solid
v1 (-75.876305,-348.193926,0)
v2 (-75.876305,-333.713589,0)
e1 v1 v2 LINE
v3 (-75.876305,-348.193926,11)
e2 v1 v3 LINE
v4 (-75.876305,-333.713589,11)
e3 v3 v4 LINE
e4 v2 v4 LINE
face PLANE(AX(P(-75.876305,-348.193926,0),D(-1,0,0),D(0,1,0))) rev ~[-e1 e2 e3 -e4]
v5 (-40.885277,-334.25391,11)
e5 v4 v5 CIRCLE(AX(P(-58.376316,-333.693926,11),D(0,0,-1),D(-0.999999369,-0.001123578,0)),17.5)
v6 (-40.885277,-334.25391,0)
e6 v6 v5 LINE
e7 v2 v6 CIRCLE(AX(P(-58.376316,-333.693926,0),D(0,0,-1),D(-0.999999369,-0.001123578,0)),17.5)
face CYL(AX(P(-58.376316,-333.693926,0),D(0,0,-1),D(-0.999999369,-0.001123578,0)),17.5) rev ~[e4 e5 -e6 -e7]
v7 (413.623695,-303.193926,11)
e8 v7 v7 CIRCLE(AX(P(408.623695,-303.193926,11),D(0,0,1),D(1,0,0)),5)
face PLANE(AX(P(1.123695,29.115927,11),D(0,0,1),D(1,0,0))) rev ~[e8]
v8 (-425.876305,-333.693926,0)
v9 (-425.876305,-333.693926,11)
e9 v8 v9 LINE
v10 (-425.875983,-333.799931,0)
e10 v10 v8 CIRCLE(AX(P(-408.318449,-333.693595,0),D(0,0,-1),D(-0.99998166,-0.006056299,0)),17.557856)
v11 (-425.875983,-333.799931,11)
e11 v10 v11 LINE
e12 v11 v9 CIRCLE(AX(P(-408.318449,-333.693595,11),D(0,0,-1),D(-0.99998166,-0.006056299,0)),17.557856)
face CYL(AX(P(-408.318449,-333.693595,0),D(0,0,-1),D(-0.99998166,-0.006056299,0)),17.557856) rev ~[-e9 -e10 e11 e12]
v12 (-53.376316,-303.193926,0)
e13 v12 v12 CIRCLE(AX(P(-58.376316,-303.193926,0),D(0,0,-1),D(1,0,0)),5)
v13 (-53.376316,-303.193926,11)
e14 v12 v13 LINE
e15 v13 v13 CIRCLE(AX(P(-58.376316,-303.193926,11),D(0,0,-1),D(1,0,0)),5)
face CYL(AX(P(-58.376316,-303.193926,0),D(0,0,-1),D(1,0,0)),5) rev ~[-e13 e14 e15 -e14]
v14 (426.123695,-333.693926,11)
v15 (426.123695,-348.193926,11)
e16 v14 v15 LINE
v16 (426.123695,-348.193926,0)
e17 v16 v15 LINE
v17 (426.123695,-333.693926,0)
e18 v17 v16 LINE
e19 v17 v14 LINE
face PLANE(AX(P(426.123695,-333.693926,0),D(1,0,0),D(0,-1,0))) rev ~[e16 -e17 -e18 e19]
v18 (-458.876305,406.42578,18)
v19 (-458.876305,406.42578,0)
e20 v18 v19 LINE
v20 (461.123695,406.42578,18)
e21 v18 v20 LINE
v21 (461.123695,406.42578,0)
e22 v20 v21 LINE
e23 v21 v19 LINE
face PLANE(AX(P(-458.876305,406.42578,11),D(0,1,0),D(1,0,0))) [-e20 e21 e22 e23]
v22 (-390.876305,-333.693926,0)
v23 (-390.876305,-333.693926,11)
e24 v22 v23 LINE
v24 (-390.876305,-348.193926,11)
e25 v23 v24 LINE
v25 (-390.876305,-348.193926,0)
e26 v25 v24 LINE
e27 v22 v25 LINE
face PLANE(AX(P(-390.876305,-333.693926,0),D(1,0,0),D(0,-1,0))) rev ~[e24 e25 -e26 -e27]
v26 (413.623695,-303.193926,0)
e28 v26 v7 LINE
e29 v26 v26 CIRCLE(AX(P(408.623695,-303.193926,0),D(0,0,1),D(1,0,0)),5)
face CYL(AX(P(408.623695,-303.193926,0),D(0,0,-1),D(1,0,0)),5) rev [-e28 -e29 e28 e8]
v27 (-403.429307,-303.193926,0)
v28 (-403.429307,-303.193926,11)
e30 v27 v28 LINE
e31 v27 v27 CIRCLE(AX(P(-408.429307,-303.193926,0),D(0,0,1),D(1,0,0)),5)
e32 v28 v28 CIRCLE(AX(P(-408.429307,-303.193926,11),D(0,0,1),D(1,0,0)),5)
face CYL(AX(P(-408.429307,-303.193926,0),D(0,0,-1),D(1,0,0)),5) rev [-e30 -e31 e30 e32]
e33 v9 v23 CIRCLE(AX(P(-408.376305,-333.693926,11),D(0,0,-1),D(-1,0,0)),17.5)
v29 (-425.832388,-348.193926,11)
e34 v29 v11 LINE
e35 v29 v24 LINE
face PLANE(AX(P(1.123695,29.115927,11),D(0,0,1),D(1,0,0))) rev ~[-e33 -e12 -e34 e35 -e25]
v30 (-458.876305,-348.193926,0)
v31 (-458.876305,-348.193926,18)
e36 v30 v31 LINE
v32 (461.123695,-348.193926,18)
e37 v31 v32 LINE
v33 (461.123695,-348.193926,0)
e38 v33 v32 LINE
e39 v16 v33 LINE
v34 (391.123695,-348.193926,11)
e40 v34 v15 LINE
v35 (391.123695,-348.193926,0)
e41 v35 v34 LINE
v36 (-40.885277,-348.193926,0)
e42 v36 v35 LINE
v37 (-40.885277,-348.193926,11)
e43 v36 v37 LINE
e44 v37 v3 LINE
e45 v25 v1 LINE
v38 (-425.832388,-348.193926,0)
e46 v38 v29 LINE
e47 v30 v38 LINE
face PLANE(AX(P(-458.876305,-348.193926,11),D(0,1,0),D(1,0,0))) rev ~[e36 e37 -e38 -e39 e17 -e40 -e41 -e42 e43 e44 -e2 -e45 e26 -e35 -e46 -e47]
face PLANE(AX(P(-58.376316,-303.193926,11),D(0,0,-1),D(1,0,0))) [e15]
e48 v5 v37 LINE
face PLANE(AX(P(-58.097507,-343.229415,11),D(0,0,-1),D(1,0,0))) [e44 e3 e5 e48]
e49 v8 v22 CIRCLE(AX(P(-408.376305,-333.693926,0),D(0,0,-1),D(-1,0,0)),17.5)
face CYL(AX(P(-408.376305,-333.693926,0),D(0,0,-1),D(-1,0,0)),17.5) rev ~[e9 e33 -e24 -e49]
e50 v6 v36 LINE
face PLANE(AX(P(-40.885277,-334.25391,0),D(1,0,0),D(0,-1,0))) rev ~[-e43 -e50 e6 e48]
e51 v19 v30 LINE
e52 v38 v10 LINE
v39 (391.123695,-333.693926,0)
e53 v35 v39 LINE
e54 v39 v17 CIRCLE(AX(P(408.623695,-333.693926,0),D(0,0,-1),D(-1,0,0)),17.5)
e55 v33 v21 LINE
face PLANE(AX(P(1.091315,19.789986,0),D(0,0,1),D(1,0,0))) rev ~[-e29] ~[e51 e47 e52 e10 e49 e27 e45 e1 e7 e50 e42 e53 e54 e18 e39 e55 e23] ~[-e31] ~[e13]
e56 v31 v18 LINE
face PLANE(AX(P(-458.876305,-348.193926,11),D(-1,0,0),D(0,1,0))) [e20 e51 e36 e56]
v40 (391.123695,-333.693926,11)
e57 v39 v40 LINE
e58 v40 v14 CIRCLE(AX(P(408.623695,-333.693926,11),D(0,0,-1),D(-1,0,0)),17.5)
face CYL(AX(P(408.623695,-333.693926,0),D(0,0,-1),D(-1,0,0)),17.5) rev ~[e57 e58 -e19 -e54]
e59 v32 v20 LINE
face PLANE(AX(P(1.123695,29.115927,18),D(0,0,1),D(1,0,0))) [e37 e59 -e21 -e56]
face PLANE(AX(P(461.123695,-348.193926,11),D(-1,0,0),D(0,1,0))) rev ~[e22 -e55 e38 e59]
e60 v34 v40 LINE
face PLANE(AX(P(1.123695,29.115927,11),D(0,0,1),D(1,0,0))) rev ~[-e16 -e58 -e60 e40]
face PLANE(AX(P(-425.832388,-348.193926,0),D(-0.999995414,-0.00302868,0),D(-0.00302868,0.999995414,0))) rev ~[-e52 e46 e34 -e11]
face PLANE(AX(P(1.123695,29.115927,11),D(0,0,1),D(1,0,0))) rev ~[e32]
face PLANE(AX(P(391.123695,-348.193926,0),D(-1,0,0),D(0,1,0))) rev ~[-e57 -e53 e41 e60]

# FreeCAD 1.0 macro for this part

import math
import FreeCAD as App
import Part
import Sketcher

V = App.Vector


def add_polygon(sketch, points):
    """Adds a closed chain of lines whose ends are joined by coincident constraints."""
    first, n = sketch.GeometryCount, len(points)
    for a, b in zip(points, points[1:] + points[:1]):
        sketch.addGeometry(Part.LineSegment(App.Vector(*a, 0), App.Vector(*b, 0)), False)
    for i in range(n):
        sketch.addConstraint(Sketcher.Constraint("Coincident", first + i, 2, first + (i + 1) % n, 1))

doc = App.newDocument("Part")
body = doc.addObject("PartDesign::Body", "Body")

# Sketch on XY plane
sketch1 = body.newObject("Sketcher::SketchObject", "Sketch")
sketch1.AttachmentSupport = (doc.getObject("XY_Plane"), [""])
sketch1.MapMode = "FlatFace"
sketch1.addGeometry(Part.LineSegment(V(461.12, 406.43, 0), V(-458.88, 406.43, 0)), False)
sketch1.addGeometry(Part.LineSegment(V(-458.88, 406.43, 0), V(-458.88, -348.19, 0)), False)
sketch1.addGeometry(Part.LineSegment(V(-458.88, -348.19, 0), V(-425.83, -348.19, 0)), False)
sketch1.addGeometry(Part.LineSegment(V(-425.83, -348.19, 0), V(-425.88, -333.8, 0)), False)
sketch1.addGeometry(Part.ArcOfCircle(Part.Circle(V(-408.32, -333.69, 0), V(0, 0, 1), 17.56), math.radians(-180), math.radians(-179.65)), False)
sketch1.addGeometry(Part.ArcOfCircle(Part.Circle(V(-408.38, -333.69, 0), V(0, 0, 1), 17.5), math.radians(0), math.radians(180)), False)
sketch1.addGeometry(Part.LineSegment(V(-390.88, -333.69, 0), V(-390.88, -348.19, 0)), False)
sketch1.addGeometry(Part.LineSegment(V(-390.88, -348.19, 0), V(391.12, -348.19, 0)), False)
sketch1.addGeometry(Part.LineSegment(V(391.12, -348.19, 0), V(391.12, -333.69, 0)), False)
sketch1.addGeometry(Part.ArcOfCircle(Part.Circle(V(408.62, -333.69, 0), V(0, 0, 1), 17.5), math.radians(0), math.radians(180)), False)
sketch1.addGeometry(Part.LineSegment(V(426.12, -333.69, 0), V(426.12, -348.19, 0)), False)
sketch1.addGeometry(Part.LineSegment(V(426.12, -348.19, 0), V(461.12, -348.19, 0)), False)
sketch1.addGeometry(Part.LineSegment(V(461.12, -348.19, 0), V(461.12, 406.43, 0)), False)
sketch1.addGeometry(Part.Circle(V(-408.43, -303.19, 0), V(0, 0, 1), 5), False)
sketch1.addGeometry(Part.Circle(V(408.62, -303.19, 0), V(0, 0, 1), 5), False)
sketch1.addConstraint(Sketcher.Constraint("Coincident", 0, 2, 1, 1))
sketch1.addConstraint(Sketcher.Constraint("Coincident", 1, 2, 2, 1))
sketch1.addConstraint(Sketcher.Constraint("Coincident", 2, 2, 3, 1))
sketch1.addConstraint(Sketcher.Constraint("Coincident", 3, 2, 4, 2))
sketch1.addConstraint(Sketcher.Constraint("Coincident", 4, 1, 5, 2))
sketch1.addConstraint(Sketcher.Constraint("Tangent", 5, 1, 6, 1))
sketch1.addConstraint(Sketcher.Constraint("Coincident", 6, 2, 7, 1))
sketch1.addConstraint(Sketcher.Constraint("Coincident", 7, 2, 8, 1))
sketch1.addConstraint(Sketcher.Constraint("Tangent", 8, 2, 9, 2))
sketch1.addConstraint(Sketcher.Constraint("Tangent", 9, 1, 10, 1))
sketch1.addConstraint(Sketcher.Constraint("Coincident", 10, 2, 11, 1))
sketch1.addConstraint(Sketcher.Constraint("Coincident", 11, 2, 12, 1))
sketch1.addConstraint(Sketcher.Constraint("Coincident", 12, 2, 0, 1))
sketch1.addConstraint(Sketcher.Constraint("Horizontal", 0))
sketch1.addConstraint(Sketcher.Constraint("Vertical", 1))
sketch1.addConstraint(Sketcher.Constraint("Horizontal", 2))
sketch1.addConstraint(Sketcher.Constraint("Vertical", 6))
sketch1.addConstraint(Sketcher.Constraint("Horizontal", 7))
sketch1.addConstraint(Sketcher.Constraint("Vertical", 8))
sketch1.addConstraint(Sketcher.Constraint("Vertical", 10))
sketch1.addConstraint(Sketcher.Constraint("Horizontal", 11))
sketch1.addConstraint(Sketcher.Constraint("Vertical", 12))
sketch1.addConstraint(Sketcher.Constraint("Equal", 5, 9))
sketch1.addConstraint(Sketcher.Constraint("Equal", 13, 14))
sketch1.addConstraint(Sketcher.Constraint("Horizontal", 5, 3, 9, 3))
sketch1.addConstraint(Sketcher.Constraint("Horizontal", 13, 3, 14, 3))
sketch1.addConstraint(Sketcher.Constraint("Horizontal", 9, 3, 4, 1))
sketch1.addConstraint(Sketcher.Constraint("Horizontal", 2, 2, 6, 2))
sketch1.addConstraint(Sketcher.Constraint("Horizontal", 7, 2, 10, 2))
sketch1.addConstraint(Sketcher.Constraint("Vertical", 9, 3, 14, 3))
sketch1.addConstraint(Sketcher.Constraint("Diameter", 13, 10.0))
sketch1.addConstraint(Sketcher.Constraint("Radius", 5, 17.5))
sketch1.addConstraint(Sketcher.Constraint("DistanceX", 0, 2, 0, 1, 920.0))
sketch1.addConstraint(Sketcher.Constraint("DistanceX", 7, 1, 7, 2, 782.0))
sketch1.addConstraint(Sketcher.Constraint("DistanceX", 11, 1, 11, 2, 35.0))
sketch1.addConstraint(Sketcher.Constraint("DistanceY", 6, 2, 6, 1, 14.5))
sketch1.addConstraint(Sketcher.Constraint("DistanceY", 1, 2, 13, 3, 45.0))
sketch1.addConstraint(Sketcher.Constraint("Radius", 4, 17.557856))
sketch1.addConstraint(Sketcher.Constraint("DistanceX", 13, 3, 5, 3, 0.053002))
sketch1.addConstraint(Sketcher.Constraint("Distance", 3, 14.394061))
sketch1.addConstraint(Sketcher.Constraint("DistanceX", 2, 1, 2, 2, 33.043917))
sketch1.addConstraint(Sketcher.Constraint("DistanceY", 1, 2, 1, 1, 754.619706))
sketch1.addConstraint(Sketcher.Constraint("DistanceX", 4, 3, -1, 1, 408.318449))
sketch1.addConstraint(Sketcher.Constraint("DistanceY", -1, 1, 0, 2, 406.42578))
sketch1.addConstraint(Sketcher.Constraint("DistanceY", 5, 3, 4, 3, 0.000331))
pad1 = body.newObject("PartDesign::Pad", "Pad")
pad1.Profile = sketch1
pad1.Length = 11

# Sketch on XY plane
sketch2 = body.newObject("Sketcher::SketchObject", "Sketch001")
sketch2.AttachmentSupport = (doc.getObject("XY_Plane"), [""])
sketch2.MapMode = "FlatFace"
sketch2.AttachmentOffset = App.Placement(V(0, 0, 11), App.Rotation())
add_polygon(sketch2, [(-459, 406), (-459, -348), (461, -348), (461, 406)])  # lines 0-3
sketch2.addConstraint(Sketcher.Constraint("Vertical", 0))
sketch2.addConstraint(Sketcher.Constraint("Horizontal", 1))
sketch2.addConstraint(Sketcher.Constraint("Vertical", 2))
sketch2.addConstraint(Sketcher.Constraint("Horizontal", 3))
sketch2.addConstraint(Sketcher.Constraint("DistanceX", 1, 1, 1, 2, 920.0))
sketch2.addConstraint(Sketcher.Constraint("DistanceY", 0, 2, 0, 1, 754.619706))
sketch2.addConstraint(Sketcher.Constraint("DistanceY", -1, 1, 2, 2, 406.42578))
sketch2.addConstraint(Sketcher.Constraint("DistanceX", 0, 2, -1, 1, 458.876305))
pad2 = body.newObject("PartDesign::Pad", "Pad001")
pad2.Profile = sketch2
pad2.Length = 7

# Sketch on XY plane
sketch3 = body.newObject("Sketcher::SketchObject", "Sketch002")
sketch3.AttachmentSupport = (doc.getObject("XY_Plane"), [""])
sketch3.MapMode = "FlatFace"
sketch3.addGeometry(Part.LineSegment(V(-76, -348, 0), V(-76, -334, 0)), False)
sketch3.addGeometry(Part.ArcOfCircle(Part.Circle(V(-58, -334, 0), V(0, 0, 1), 18), math.radians(-2), math.radians(180)), False)
sketch3.addGeometry(Part.LineSegment(V(-41, -334, 0), V(-41, -348, 0)), False)
sketch3.addGeometry(Part.LineSegment(V(-41, -348, 0), V(-56, -374, 0)), False)
sketch3.addGeometry(Part.LineSegment(V(-56, -374, 0), V(-76, -348, 0)), False)
sketch3.addGeometry(Part.Circle(V(-58, -303, 0), V(0, 0, 1), 5), False)
sketch3.addConstraint(Sketcher.Constraint("Coincident", 0, 2, 1, 2))
sketch3.addConstraint(Sketcher.Constraint("Coincident", 1, 1, 2, 1))
sketch3.addConstraint(Sketcher.Constraint("Coincident", 2, 2, 3, 1))
sketch3.addConstraint(Sketcher.Constraint("Coincident", 3, 2, 4, 1))
sketch3.addConstraint(Sketcher.Constraint("Coincident", 4, 2, 0, 1))
sketch3.addConstraint(Sketcher.Constraint("Vertical", 0))
sketch3.addConstraint(Sketcher.Constraint("Vertical", 2))
sketch3.addConstraint(Sketcher.Constraint("Horizontal", 2, 2, 4, 2))
sketch3.addConstraint(Sketcher.Constraint("Vertical", 1, 3, 5, 3))
sketch3.addConstraint(Sketcher.Constraint("Diameter", 5, 10.0))
sketch3.addConstraint(Sketcher.Constraint("Radius", 1, 17.5))
sketch3.addConstraint(Sketcher.Constraint("DistanceY", 2, 2, 5, 3, 45.0))
sketch3.addConstraint(Sketcher.Constraint("DistanceY", 1, 3, 5, 3, 30.5))
sketch3.addConstraint(Sketcher.Constraint("Distance", 3, 29.817752))
sketch3.addConstraint(Sketcher.Constraint("DistanceY", 0, 1, 0, 2, 14.480337))
sketch3.addConstraint(Sketcher.Constraint("DistanceY", 2, 2, 2, 1, 13.940016))
sketch3.addConstraint(Sketcher.Constraint("DistanceY", 0, 2, -1, 1, 333.713589))
sketch3.addConstraint(Sketcher.Constraint("DistanceY", 3, 2, -1, 1, 373.656452))
sketch3.addConstraint(Sketcher.Constraint("DistanceX", 1, 3, -1, 1, 58.376316))
pocket1 = body.newObject("PartDesign::Pocket", "Pocket")
pocket1.Profile = sketch3
pocket1.Length = 11
pocket1.Reversed = True

doc.recompute()
